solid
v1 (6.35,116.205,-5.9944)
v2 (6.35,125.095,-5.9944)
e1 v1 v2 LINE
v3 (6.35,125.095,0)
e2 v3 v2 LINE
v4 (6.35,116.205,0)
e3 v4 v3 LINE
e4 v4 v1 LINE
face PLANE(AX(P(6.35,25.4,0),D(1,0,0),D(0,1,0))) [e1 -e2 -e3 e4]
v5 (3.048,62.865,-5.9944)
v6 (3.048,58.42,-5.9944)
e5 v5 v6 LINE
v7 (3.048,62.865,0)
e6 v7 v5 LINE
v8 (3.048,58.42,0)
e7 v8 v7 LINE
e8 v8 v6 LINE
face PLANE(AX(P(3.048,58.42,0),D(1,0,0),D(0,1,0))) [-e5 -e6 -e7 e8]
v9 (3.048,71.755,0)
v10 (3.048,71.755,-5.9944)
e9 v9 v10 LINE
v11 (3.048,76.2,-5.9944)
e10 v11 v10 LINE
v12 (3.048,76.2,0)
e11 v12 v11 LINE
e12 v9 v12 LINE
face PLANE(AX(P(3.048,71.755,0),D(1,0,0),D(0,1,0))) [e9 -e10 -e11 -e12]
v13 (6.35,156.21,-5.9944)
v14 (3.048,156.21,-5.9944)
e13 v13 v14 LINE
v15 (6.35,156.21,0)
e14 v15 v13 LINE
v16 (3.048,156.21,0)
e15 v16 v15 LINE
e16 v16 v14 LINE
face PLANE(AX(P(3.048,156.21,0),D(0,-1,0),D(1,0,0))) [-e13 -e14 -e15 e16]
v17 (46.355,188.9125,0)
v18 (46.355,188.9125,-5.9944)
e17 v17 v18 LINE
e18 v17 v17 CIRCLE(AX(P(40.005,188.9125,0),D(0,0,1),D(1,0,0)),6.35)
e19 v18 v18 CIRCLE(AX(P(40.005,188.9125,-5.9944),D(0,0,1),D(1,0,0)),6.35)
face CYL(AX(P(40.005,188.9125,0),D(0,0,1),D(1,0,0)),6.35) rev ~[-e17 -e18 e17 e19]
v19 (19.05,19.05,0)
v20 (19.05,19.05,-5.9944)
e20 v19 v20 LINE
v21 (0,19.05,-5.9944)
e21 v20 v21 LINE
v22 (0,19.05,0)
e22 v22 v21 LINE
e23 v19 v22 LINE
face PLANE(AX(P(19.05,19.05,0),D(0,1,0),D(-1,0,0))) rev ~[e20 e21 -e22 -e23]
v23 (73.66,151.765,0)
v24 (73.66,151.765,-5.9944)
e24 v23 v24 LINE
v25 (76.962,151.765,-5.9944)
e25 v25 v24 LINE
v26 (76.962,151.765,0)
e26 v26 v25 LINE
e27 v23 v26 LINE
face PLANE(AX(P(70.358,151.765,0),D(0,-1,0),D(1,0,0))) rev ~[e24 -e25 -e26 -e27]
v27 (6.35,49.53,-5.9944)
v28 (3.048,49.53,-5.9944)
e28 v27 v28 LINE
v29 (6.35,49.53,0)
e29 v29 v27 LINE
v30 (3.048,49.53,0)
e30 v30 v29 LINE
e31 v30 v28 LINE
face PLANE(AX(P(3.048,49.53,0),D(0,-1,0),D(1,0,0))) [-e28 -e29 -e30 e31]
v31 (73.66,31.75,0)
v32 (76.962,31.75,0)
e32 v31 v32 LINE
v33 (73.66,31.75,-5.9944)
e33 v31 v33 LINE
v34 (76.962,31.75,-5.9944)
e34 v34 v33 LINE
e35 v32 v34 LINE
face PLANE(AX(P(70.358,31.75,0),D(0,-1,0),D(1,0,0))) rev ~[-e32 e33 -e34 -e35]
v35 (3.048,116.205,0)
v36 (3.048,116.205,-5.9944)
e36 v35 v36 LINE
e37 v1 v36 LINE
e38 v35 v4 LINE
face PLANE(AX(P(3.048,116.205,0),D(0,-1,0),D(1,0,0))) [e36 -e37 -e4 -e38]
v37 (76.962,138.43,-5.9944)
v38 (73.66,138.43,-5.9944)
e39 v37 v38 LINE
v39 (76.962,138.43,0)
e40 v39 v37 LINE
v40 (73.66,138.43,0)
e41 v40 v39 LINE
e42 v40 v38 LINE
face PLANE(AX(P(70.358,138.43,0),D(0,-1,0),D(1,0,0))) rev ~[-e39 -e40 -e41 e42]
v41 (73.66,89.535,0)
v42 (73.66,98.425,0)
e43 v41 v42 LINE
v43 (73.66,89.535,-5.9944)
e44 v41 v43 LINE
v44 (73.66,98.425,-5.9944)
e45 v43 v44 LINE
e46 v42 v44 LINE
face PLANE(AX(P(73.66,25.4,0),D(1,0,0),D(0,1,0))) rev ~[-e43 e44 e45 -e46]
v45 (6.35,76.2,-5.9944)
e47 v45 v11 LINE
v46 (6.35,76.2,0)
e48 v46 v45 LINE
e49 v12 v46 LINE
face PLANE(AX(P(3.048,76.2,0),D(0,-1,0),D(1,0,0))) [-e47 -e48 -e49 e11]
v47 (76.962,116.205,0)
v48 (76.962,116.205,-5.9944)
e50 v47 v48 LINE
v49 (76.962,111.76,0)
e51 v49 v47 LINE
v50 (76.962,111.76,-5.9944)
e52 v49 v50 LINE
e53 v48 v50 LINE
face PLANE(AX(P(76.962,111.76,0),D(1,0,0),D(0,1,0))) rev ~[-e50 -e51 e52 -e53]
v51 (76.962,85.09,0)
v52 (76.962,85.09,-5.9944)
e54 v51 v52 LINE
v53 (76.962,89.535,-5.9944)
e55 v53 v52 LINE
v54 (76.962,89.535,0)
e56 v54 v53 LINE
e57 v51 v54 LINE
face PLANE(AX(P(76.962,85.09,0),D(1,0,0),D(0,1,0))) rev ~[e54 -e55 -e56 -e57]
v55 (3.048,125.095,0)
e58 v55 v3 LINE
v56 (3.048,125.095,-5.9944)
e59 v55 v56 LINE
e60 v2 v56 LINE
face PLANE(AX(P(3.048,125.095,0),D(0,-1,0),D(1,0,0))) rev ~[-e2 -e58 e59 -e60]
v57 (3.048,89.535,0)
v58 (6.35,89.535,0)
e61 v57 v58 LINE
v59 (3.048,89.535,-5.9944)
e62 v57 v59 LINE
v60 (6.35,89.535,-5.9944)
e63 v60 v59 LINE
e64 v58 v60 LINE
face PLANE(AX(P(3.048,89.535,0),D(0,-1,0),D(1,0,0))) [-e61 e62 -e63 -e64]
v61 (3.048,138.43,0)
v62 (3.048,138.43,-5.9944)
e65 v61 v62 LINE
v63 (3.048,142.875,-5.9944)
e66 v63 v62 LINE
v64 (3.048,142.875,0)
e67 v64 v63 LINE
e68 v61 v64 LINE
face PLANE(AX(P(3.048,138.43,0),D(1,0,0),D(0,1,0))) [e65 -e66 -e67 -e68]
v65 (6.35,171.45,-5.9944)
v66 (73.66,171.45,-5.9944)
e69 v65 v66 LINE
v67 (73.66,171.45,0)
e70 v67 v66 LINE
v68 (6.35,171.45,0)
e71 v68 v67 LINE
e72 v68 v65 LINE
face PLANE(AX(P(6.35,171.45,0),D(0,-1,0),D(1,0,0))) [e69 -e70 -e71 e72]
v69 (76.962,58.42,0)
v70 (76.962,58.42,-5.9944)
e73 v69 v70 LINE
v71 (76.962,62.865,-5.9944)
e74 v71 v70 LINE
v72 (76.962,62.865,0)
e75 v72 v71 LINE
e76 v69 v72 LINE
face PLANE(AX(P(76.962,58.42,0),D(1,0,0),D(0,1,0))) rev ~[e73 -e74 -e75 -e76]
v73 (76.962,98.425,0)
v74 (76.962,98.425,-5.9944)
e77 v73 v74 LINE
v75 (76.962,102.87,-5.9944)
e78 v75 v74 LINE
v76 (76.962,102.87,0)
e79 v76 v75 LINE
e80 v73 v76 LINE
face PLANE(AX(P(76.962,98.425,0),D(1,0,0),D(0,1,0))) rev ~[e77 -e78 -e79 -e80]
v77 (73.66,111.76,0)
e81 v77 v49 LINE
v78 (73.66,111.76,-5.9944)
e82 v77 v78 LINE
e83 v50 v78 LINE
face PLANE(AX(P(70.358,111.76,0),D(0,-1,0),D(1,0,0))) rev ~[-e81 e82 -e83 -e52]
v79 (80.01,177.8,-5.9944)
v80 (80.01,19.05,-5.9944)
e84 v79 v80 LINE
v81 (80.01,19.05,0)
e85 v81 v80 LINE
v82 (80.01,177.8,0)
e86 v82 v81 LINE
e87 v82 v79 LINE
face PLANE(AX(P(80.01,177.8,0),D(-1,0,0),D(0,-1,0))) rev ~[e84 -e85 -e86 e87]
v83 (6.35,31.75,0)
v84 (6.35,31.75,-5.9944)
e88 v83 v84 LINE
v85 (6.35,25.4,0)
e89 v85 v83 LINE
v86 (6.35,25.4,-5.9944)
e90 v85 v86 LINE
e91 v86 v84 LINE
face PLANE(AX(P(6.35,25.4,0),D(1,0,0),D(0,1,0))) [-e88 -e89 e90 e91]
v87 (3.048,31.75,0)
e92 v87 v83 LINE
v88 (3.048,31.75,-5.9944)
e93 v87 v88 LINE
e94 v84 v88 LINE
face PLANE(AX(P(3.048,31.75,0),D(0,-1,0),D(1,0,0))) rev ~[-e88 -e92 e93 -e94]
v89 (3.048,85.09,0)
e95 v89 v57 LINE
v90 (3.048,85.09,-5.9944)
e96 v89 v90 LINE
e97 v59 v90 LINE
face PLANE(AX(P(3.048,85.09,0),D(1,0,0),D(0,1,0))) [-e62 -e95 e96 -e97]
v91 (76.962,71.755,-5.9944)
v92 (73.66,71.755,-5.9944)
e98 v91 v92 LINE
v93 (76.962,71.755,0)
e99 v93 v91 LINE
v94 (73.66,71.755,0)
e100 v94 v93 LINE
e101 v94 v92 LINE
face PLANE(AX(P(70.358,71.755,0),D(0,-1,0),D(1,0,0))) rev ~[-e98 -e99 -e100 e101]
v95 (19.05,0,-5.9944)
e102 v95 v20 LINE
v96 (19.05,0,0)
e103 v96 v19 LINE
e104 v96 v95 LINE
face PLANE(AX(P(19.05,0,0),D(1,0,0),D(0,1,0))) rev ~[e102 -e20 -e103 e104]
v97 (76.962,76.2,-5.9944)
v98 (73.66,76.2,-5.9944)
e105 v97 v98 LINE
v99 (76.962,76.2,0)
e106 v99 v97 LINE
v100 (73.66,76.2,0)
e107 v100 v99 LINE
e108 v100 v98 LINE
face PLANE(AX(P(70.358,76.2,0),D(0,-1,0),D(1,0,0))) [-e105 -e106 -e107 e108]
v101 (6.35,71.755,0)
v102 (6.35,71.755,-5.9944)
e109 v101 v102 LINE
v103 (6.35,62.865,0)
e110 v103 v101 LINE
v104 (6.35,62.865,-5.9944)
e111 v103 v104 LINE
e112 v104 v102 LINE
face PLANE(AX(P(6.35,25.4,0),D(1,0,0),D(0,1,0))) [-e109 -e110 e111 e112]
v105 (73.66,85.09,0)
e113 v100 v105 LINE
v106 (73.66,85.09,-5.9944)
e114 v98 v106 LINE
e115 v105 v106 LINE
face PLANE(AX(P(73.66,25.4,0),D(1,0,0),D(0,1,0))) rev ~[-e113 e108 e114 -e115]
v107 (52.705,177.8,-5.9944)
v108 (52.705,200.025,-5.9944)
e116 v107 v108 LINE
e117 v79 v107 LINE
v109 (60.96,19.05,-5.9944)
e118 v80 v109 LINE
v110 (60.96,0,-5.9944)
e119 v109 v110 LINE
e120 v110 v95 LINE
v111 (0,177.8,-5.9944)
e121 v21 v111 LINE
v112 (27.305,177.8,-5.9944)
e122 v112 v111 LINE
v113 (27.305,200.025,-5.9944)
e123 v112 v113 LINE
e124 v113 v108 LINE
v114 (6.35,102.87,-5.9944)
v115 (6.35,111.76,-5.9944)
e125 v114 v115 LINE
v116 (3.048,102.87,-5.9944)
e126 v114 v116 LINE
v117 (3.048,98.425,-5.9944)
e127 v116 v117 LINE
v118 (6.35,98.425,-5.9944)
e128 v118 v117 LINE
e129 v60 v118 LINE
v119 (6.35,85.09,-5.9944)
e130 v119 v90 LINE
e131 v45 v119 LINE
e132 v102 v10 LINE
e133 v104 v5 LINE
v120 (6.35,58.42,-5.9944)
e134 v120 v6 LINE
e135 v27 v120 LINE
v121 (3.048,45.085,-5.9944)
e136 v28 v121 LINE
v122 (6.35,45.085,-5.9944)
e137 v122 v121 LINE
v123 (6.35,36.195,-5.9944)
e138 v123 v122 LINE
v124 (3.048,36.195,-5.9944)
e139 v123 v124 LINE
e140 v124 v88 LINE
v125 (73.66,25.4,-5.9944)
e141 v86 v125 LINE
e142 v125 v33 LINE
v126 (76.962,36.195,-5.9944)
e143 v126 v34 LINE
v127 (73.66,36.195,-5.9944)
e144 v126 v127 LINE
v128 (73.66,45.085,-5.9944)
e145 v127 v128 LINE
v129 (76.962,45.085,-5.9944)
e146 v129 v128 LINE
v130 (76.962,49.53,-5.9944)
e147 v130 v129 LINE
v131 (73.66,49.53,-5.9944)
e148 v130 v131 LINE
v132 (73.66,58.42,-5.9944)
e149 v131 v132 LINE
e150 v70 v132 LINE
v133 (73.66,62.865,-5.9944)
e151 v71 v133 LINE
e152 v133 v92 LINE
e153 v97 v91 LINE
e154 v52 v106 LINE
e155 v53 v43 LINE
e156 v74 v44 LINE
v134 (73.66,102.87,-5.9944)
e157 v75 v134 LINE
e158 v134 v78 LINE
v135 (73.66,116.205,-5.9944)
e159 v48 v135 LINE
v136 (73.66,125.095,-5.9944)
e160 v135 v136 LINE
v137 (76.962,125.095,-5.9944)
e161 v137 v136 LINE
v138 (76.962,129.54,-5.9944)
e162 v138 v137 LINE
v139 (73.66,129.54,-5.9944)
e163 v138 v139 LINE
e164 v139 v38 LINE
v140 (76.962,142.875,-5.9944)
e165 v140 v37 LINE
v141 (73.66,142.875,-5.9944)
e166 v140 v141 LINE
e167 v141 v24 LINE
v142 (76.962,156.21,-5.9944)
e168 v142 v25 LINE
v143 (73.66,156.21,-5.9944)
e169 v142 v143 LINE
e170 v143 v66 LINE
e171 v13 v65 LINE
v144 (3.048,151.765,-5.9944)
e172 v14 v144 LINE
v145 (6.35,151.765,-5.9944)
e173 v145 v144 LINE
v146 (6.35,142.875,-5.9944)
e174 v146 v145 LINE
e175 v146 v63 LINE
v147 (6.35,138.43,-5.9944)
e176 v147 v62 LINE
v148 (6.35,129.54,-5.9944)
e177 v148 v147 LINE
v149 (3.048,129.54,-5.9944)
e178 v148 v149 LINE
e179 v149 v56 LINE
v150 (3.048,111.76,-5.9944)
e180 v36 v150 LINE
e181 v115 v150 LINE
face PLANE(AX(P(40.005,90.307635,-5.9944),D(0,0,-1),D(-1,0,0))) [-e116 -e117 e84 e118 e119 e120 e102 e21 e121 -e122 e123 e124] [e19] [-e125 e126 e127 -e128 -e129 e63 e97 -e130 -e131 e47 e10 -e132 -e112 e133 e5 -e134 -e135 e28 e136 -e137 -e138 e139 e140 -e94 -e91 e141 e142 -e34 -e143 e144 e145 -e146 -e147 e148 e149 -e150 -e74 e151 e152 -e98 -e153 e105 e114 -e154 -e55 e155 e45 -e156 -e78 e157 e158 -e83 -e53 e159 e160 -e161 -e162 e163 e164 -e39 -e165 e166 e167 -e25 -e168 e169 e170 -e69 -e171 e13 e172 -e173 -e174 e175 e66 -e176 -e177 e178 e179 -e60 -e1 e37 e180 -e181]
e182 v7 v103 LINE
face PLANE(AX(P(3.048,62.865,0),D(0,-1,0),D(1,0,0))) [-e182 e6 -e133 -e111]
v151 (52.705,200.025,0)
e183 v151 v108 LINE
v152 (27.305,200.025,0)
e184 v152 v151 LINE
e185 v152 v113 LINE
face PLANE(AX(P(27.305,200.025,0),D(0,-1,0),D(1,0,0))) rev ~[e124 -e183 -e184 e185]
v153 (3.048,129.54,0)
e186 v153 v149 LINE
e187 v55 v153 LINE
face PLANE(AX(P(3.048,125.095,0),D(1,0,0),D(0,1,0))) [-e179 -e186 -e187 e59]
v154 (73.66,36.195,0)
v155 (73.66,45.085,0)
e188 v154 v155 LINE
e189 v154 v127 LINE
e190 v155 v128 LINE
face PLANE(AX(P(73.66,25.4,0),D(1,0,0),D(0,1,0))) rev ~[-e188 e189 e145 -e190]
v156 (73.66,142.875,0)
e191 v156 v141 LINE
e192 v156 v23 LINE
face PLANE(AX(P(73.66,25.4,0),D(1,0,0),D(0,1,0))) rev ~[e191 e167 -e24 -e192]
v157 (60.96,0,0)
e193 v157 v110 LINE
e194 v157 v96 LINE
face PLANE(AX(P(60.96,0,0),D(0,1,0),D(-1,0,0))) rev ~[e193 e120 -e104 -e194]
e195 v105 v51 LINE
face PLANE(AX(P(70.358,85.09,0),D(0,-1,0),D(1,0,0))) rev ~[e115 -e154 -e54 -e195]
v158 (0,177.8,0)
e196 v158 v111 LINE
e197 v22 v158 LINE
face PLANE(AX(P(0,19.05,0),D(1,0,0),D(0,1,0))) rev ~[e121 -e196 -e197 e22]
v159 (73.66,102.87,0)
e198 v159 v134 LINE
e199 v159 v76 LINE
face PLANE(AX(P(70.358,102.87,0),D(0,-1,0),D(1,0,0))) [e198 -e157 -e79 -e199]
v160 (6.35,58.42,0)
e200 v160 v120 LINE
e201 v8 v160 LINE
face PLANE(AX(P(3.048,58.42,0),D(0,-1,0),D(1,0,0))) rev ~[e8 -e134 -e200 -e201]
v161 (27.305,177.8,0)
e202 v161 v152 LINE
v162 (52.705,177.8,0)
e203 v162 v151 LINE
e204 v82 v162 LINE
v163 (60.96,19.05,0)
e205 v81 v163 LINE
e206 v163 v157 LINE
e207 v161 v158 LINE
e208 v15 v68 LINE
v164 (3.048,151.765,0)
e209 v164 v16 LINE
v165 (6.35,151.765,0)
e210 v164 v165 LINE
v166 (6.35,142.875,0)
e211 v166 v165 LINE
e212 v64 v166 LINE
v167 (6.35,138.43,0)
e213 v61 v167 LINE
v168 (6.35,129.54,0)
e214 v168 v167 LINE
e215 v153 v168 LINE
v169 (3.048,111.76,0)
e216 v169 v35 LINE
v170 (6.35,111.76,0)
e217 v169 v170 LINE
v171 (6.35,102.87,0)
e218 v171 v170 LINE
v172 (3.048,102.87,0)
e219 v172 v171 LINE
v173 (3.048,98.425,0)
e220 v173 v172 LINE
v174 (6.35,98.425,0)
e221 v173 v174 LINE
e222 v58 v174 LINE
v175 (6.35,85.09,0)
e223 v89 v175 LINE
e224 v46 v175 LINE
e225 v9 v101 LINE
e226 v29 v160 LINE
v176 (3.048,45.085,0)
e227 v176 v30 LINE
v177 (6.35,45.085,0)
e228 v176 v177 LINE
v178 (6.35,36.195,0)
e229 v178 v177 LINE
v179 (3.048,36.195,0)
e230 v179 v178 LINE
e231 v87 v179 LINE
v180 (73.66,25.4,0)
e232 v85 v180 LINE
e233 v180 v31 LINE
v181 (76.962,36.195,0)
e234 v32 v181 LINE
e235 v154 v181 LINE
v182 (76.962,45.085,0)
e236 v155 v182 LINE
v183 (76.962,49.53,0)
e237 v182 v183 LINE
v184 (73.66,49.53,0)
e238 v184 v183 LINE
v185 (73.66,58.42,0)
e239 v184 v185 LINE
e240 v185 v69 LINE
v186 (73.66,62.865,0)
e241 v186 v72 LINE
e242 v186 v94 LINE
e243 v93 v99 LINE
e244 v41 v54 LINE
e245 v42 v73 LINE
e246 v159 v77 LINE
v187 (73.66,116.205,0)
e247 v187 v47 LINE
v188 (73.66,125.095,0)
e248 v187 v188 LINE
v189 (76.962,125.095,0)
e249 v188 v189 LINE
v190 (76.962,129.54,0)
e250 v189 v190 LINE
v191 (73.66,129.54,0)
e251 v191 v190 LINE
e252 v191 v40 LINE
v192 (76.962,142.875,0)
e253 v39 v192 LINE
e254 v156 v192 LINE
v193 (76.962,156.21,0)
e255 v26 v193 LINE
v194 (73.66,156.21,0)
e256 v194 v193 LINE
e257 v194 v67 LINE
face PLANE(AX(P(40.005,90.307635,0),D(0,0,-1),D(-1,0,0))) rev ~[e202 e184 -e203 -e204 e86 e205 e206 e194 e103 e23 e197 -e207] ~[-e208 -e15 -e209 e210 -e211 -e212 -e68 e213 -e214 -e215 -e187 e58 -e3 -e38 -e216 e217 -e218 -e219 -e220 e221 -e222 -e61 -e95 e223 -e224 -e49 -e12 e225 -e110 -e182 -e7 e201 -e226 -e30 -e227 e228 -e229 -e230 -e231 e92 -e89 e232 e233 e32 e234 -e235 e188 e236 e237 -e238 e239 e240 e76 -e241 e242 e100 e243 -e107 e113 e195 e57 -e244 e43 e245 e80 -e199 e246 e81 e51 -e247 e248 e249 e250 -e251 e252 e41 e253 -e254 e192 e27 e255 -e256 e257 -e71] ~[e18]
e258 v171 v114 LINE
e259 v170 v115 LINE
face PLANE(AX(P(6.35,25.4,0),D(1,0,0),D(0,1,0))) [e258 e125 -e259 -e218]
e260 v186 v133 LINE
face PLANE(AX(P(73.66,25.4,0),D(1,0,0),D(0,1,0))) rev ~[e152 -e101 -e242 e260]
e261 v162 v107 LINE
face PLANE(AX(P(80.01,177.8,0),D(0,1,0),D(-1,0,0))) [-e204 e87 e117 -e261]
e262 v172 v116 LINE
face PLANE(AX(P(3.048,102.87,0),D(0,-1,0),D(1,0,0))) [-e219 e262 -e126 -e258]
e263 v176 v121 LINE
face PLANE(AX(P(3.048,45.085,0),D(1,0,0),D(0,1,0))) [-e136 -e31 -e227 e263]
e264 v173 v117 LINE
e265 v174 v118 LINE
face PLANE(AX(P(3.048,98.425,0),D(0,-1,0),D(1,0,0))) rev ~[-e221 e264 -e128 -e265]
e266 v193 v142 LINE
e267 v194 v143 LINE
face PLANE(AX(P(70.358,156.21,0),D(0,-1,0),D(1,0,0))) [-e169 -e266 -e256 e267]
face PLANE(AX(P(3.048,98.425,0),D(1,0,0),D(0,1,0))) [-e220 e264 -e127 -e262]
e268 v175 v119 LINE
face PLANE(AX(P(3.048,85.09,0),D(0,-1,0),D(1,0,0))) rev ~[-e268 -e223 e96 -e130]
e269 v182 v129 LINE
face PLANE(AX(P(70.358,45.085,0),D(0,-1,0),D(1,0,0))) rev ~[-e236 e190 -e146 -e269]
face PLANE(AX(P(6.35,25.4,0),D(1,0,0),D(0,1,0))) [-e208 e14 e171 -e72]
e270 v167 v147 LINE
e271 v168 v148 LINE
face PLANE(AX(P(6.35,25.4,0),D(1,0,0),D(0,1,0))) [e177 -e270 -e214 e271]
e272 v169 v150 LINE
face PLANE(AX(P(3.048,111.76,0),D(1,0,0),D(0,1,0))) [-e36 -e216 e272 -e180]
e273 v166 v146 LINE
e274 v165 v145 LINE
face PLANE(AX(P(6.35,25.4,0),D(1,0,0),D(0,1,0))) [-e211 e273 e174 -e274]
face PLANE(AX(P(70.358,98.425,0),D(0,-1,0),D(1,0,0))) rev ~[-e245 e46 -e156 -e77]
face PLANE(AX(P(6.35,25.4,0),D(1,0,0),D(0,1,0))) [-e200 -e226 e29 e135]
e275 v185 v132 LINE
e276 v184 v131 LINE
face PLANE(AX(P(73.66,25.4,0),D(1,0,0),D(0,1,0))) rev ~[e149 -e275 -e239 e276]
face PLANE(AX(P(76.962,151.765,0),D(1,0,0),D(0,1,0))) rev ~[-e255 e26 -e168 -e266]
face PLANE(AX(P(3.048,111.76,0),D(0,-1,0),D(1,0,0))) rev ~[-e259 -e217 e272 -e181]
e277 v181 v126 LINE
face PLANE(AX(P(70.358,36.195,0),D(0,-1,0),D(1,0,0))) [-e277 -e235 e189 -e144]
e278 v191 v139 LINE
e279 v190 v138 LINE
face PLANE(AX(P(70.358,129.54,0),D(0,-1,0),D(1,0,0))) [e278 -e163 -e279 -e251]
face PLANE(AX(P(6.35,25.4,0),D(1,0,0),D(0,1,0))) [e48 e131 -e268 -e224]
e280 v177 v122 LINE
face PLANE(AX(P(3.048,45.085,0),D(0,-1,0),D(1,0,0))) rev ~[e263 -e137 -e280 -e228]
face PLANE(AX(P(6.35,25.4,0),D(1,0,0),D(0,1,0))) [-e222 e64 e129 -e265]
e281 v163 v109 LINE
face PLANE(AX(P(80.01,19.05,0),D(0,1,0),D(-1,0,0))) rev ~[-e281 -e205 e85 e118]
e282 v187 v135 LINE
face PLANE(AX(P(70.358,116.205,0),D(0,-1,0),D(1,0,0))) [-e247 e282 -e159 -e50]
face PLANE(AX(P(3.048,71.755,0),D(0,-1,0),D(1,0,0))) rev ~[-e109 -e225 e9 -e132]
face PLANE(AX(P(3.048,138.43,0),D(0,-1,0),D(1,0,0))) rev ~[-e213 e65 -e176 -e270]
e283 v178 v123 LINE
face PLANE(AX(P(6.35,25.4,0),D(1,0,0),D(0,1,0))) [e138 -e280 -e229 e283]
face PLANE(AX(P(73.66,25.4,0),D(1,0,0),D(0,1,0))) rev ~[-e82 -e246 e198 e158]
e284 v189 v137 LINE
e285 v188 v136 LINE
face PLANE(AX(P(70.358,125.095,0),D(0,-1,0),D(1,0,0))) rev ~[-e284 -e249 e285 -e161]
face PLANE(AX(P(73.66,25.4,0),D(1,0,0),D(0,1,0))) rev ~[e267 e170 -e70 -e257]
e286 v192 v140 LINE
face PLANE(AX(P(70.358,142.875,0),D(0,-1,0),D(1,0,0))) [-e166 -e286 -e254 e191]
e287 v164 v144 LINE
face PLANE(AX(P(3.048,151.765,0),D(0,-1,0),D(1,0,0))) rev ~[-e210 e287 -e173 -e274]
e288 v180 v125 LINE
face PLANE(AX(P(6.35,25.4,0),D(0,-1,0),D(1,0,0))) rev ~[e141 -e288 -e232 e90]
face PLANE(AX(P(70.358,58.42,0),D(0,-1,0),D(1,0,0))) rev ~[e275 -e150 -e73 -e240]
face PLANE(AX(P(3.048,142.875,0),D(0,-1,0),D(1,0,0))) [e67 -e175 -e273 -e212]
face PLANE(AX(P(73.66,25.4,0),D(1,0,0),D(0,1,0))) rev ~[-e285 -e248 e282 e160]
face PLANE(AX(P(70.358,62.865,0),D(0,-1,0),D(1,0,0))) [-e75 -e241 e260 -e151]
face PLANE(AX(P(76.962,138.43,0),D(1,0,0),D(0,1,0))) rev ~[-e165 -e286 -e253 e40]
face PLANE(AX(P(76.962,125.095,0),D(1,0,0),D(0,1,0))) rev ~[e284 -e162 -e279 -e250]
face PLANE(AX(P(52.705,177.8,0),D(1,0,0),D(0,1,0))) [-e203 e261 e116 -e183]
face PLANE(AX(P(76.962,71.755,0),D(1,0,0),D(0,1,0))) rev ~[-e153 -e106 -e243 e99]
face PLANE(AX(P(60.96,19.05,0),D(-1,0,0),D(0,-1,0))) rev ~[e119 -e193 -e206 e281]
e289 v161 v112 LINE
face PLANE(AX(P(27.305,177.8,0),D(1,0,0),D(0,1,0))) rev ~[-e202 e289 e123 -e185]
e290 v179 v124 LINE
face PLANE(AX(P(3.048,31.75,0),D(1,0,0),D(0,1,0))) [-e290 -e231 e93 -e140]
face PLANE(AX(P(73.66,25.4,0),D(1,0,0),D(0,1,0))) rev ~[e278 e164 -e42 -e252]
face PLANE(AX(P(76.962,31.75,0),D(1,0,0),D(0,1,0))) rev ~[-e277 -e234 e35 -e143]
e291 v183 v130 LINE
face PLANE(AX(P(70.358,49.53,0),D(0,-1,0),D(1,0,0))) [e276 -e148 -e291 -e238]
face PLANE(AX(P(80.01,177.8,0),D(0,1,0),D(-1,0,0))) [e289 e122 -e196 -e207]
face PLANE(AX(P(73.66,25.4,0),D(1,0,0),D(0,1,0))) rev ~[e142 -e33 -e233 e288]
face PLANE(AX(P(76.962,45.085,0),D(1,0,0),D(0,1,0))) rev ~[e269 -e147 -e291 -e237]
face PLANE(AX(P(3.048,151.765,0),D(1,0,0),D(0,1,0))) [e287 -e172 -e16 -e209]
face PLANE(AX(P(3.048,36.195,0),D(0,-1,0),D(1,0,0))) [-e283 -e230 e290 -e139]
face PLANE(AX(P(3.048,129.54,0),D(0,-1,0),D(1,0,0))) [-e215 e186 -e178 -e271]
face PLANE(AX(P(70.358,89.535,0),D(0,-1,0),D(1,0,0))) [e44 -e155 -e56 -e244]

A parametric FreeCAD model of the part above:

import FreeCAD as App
import Part
import Sketcher
from FreeCAD import Vector
Q = App.Units.Quantity

doc = App.newDocument("Part")
body = doc.addObject("PartDesign::Body", "Body")

sketch1 = body.newObject("Sketcher::SketchObject", "Sketch")
sketch1.AttachmentSupport = (doc.getObject("XY_Plane"), [""])
sketch1.MapMode = "FlatFace"
sketch1.addGeometry(Part.LineSegment(Vector(0, 177.8, 0), Vector(0, 19.05, 0)), False)
sketch1.addGeometry(Part.LineSegment(Vector(0, 19.05, 0), Vector(19.05, 19.05, 0)), False)
sketch1.addGeometry(Part.LineSegment(Vector(19.05, 19.05, 0), Vector(19.05, 0, 0)), False)
sketch1.addGeometry(Part.LineSegment(Vector(19.05, 0, 0), Vector(60.96, 0, 0)), False)
sketch1.addGeometry(Part.LineSegment(Vector(60.96, 0, 0), Vector(60.96, 19.05, 0)), False)
sketch1.addGeometry(Part.LineSegment(Vector(60.96, 19.05, 0), Vector(80.01, 19.05, 0)), False)
sketch1.addGeometry(Part.LineSegment(Vector(80.01, 19.05, 0), Vector(80.01, 177.8, 0)), False)
sketch1.addGeometry(Part.LineSegment(Vector(80.01, 177.8, 0), Vector(0, 177.8, 0)), False)
sketch1.addGeometry(Part.LineSegment(Vector(6.35, 25.4, 0), Vector(6.35, 171.45, 0)), False)
sketch1.addGeometry(Part.LineSegment(Vector(6.35, 171.45, 0), Vector(73.66, 171.45, 0)), False)
sketch1.addGeometry(Part.LineSegment(Vector(73.66, 171.45, 0), Vector(73.66, 25.4, 0)), False)
sketch1.addGeometry(Part.LineSegment(Vector(73.66, 25.4, 0), Vector(6.35, 25.4, 0)), False)
sketch1.addConstraint(Sketcher.Constraint("Coincident", 0, 2, 1, 1))
sketch1.addConstraint(Sketcher.Constraint("Coincident", 1, 2, 2, 1))
sketch1.addConstraint(Sketcher.Constraint("Coincident", 2, 2, 3, 1))
sketch1.addConstraint(Sketcher.Constraint("Coincident", 3, 2, 4, 1))
sketch1.addConstraint(Sketcher.Constraint("Coincident", 4, 2, 5, 1))
sketch1.addConstraint(Sketcher.Constraint("Coincident", 5, 2, 6, 1))
sketch1.addConstraint(Sketcher.Constraint("Coincident", 6, 2, 7, 1))
sketch1.addConstraint(Sketcher.Constraint("Coincident", 7, 2, 0, 1))
sketch1.addConstraint(Sketcher.Constraint("Coincident", 8, 2, 9, 1))
sketch1.addConstraint(Sketcher.Constraint("Coincident", 9, 2, 10, 1))
sketch1.addConstraint(Sketcher.Constraint("Coincident", 10, 2, 11, 1))
sketch1.addConstraint(Sketcher.Constraint("Coincident", 11, 2, 8, 1))
sketch1.addConstraint(Sketcher.Constraint("Vertical", 0))
sketch1.addConstraint(Sketcher.Constraint("Horizontal", 1))
sketch1.addConstraint(Sketcher.Constraint("Vertical", 2))
sketch1.addConstraint(Sketcher.Constraint("Horizontal", 3))
sketch1.addConstraint(Sketcher.Constraint("Vertical", 4))
sketch1.addConstraint(Sketcher.Constraint("Horizontal", 5))
sketch1.addConstraint(Sketcher.Constraint("Vertical", 6))
sketch1.addConstraint(Sketcher.Constraint("Horizontal", 7))
sketch1.addConstraint(Sketcher.Constraint("Vertical", 8))
sketch1.addConstraint(Sketcher.Constraint("Horizontal", 9))
sketch1.addConstraint(Sketcher.Constraint("Vertical", 10))
sketch1.addConstraint(Sketcher.Constraint("Horizontal", 11))
sketch1.addConstraint(Sketcher.Constraint("PointOnObject", 0, 2, -2))
sketch1.addConstraint(Sketcher.Constraint("PointOnObject", 2, 2, -1))
sketch1.addConstraint(Sketcher.Constraint("Horizontal", 1, 2, 4, 2))
sketch1.addConstraint(Sketcher.Constraint("Equal", 1, 5))
sketch1.addConstraint(Sketcher.Constraint("Equal", 5, 2))
sketch1.addConstraint(Sketcher.Constraint("DistanceY", -1, 1, 6, 2, Q("7 in")))
sketch1.addConstraint(Sketcher.Constraint("DistanceY", -1, 1, 10, 2, Q("1 in")))
sketch1.addConstraint(Sketcher.Constraint("DistanceY", 0, 2, 8, 2, Q("6 in")))
sketch1.addConstraint(Sketcher.Constraint("DistanceX", 1, 1, 1, 2, Q("0.75 in")))
sketch1.addConstraint(Sketcher.Constraint("DistanceX", 3, 1, 3, 2, Q("1.65 in")))
sketch1.addConstraint(Sketcher.Constraint("DistanceX", 9, 1, 9, 2, Q("2.65 in")))
sketch1.addConstraint(Sketcher.Constraint("DistanceX", -1, 1, 9, 2, Q("2.9 in")))
pad1 = body.newObject("PartDesign::Pad", "Pad")
pad1.Profile = sketch1
pad1.Length = Q("0.236 in")
pad1.Reversed = True

sketch2 = body.newObject("Sketcher::SketchObject", "Sketch001")
sketch2.AttachmentSupport = (doc.getObject("XY_Plane"), [""])
sketch2.MapMode = "FlatFace"
sketch2.addGeometry(Part.LineSegment(Vector(3.048, 36.195, 0), Vector(3.048, 31.75, 0)), False)
sketch2.addGeometry(Part.LineSegment(Vector(3.048, 31.75, 0), Vector(9.652, 31.75, 0)), False)
sketch2.addGeometry(Part.LineSegment(Vector(9.652, 31.75, 0), Vector(9.652, 36.195, 0)), False)
sketch2.addGeometry(Part.LineSegment(Vector(9.652, 36.195, 0), Vector(3.048, 36.195, 0)), False)
sketch2.addGeometry(Part.LineSegment(Vector(3.048, 49.53, 0), Vector(3.048, 45.085, 0)), False)
sketch2.addGeometry(Part.LineSegment(Vector(3.048, 45.085, 0), Vector(9.652, 45.085, 0)), False)
sketch2.addGeometry(Part.LineSegment(Vector(9.652, 45.085, 0), Vector(9.652, 49.53, 0)), False)
sketch2.addGeometry(Part.LineSegment(Vector(9.652, 49.53, 0), Vector(3.048, 49.53, 0)), False)
sketch2.addGeometry(Part.LineSegment(Vector(3.048, 62.865, 0), Vector(3.048, 58.42, 0)), False)
sketch2.addGeometry(Part.LineSegment(Vector(3.048, 58.42, 0), Vector(9.652, 58.42, 0)), False)
sketch2.addGeometry(Part.LineSegment(Vector(9.652, 58.42, 0), Vector(9.652, 62.865, 0)), False)
sketch2.addGeometry(Part.LineSegment(Vector(9.652, 62.865, 0), Vector(3.048, 62.865, 0)), False)
sketch2.addGeometry(Part.LineSegment(Vector(3.048, 76.2, 0), Vector(3.048, 71.755, 0)), False)
sketch2.addGeometry(Part.LineSegment(Vector(3.048, 71.755, 0), Vector(9.652, 71.755, 0)), False)
sketch2.addGeometry(Part.LineSegment(Vector(9.652, 71.755, 0), Vector(9.652, 76.2, 0)), False)
sketch2.addGeometry(Part.LineSegment(Vector(9.652, 76.2, 0), Vector(3.048, 76.2, 0)), False)
sketch2.addGeometry(Part.LineSegment(Vector(3.048, 89.535, 0), Vector(3.048, 85.09, 0)), False)
sketch2.addGeometry(Part.LineSegment(Vector(3.048, 85.09, 0), Vector(9.652, 85.09, 0)), False)
sketch2.addGeometry(Part.LineSegment(Vector(9.652, 85.09, 0), Vector(9.652, 89.535, 0)), False)
sketch2.addGeometry(Part.LineSegment(Vector(9.652, 89.535, 0), Vector(3.048, 89.535, 0)), False)
sketch2.addGeometry(Part.LineSegment(Vector(3.048, 102.87, 0), Vector(3.048, 98.425, 0)), False)
sketch2.addGeometry(Part.LineSegment(Vector(3.048, 98.425, 0), Vector(9.652, 98.425, 0)), False)
sketch2.addGeometry(Part.LineSegment(Vector(9.652, 98.425, 0), Vector(9.652, 102.87, 0)), False)
sketch2.addGeometry(Part.LineSegment(Vector(9.652, 102.87, 0), Vector(3.048, 102.87, 0)), False)
sketch2.addGeometry(Part.LineSegment(Vector(3.048, 116.205, 0), Vector(3.048, 111.76, 0)), False)
sketch2.addGeometry(Part.LineSegment(Vector(3.048, 111.76, 0), Vector(9.652, 111.76, 0)), False)
sketch2.addGeometry(Part.LineSegment(Vector(9.652, 111.76, 0), Vector(9.652, 116.205, 0)), False)
sketch2.addGeometry(Part.LineSegment(Vector(9.652, 116.205, 0), Vector(3.048, 116.205, 0)), False)
sketch2.addGeometry(Part.LineSegment(Vector(3.048, 129.54, 0), Vector(3.048, 125.095, 0)), False)
sketch2.addGeometry(Part.LineSegment(Vector(3.048, 125.095, 0), Vector(9.652, 125.095, 0)), False)
sketch2.addGeometry(Part.LineSegment(Vector(9.652, 125.095, 0), Vector(9.652, 129.54, 0)), False)
sketch2.addGeometry(Part.LineSegment(Vector(9.652, 129.54, 0), Vector(3.048, 129.54, 0)), False)
sketch2.addGeometry(Part.LineSegment(Vector(3.048, 142.875, 0), Vector(3.048, 138.43, 0)), False)
sketch2.addGeometry(Part.LineSegment(Vector(3.048, 138.43, 0), Vector(9.652, 138.43, 0)), False)
sketch2.addGeometry(Part.LineSegment(Vector(9.652, 138.43, 0), Vector(9.652, 142.875, 0)), False)
sketch2.addGeometry(Part.LineSegment(Vector(9.652, 142.875, 0), Vector(3.048, 142.875, 0)), False)
sketch2.addGeometry(Part.LineSegment(Vector(3.048, 156.21, 0), Vector(3.048, 151.765, 0)), False)
sketch2.addGeometry(Part.LineSegment(Vector(3.048, 151.765, 0), Vector(9.652, 151.765, 0)), False)
sketch2.addGeometry(Part.LineSegment(Vector(9.652, 151.765, 0), Vector(9.652, 156.21, 0)), False)
sketch2.addGeometry(Part.LineSegment(Vector(9.652, 156.21, 0), Vector(3.048, 156.21, 0)), False)
sketch2.addGeometry(Part.LineSegment(Vector(70.358, 156.21, 0), Vector(70.358, 151.765, 0)), False)
sketch2.addGeometry(Part.LineSegment(Vector(70.358, 151.765, 0), Vector(76.962, 151.765, 0)), False)
sketch2.addGeometry(Part.LineSegment(Vector(76.962, 151.765, 0), Vector(76.962, 156.21, 0)), False)
sketch2.addGeometry(Part.LineSegment(Vector(76.962, 156.21, 0), Vector(70.358, 156.21, 0)), False)
sketch2.addGeometry(Part.LineSegment(Vector(70.358, 142.875, 0), Vector(70.358, 138.43, 0)), False)
sketch2.addGeometry(Part.LineSegment(Vector(70.358, 138.43, 0), Vector(76.962, 138.43, 0)), False)
sketch2.addGeometry(Part.LineSegment(Vector(76.962, 138.43, 0), Vector(76.962, 142.875, 0)), False)
sketch2.addGeometry(Part.LineSegment(Vector(76.962, 142.875, 0), Vector(70.358, 142.875, 0)), False)
sketch2.addGeometry(Part.LineSegment(Vector(70.358, 129.54, 0), Vector(70.358, 125.095, 0)), False)
sketch2.addGeometry(Part.LineSegment(Vector(70.358, 125.095, 0), Vector(76.962, 125.095, 0)), False)
sketch2.addGeometry(Part.LineSegment(Vector(76.962, 125.095, 0), Vector(76.962, 129.54, 0)), False)
sketch2.addGeometry(Part.LineSegment(Vector(76.962, 129.54, 0), Vector(70.358, 129.54, 0)), False)
sketch2.addGeometry(Part.LineSegment(Vector(70.358, 116.205, 0), Vector(70.358, 111.76, 0)), False)
sketch2.addGeometry(Part.LineSegment(Vector(70.358, 111.76, 0), Vector(76.962, 111.76, 0)), False)
sketch2.addGeometry(Part.LineSegment(Vector(76.962, 111.76, 0), Vector(76.962, 116.205, 0)), False)
sketch2.addGeometry(Part.LineSegment(Vector(76.962, 116.205, 0), Vector(70.358, 116.205, 0)), False)
sketch2.addGeometry(Part.LineSegment(Vector(70.358, 102.87, 0), Vector(70.358, 98.425, 0)), False)
sketch2.addGeometry(Part.LineSegment(Vector(70.358, 98.425, 0), Vector(76.962, 98.425, 0)), False)
sketch2.addGeometry(Part.LineSegment(Vector(76.962, 98.425, 0), Vector(76.962, 102.87, 0)), False)
sketch2.addGeometry(Part.LineSegment(Vector(76.962, 102.87, 0), Vector(70.358, 102.87, 0)), False)
sketch2.addGeometry(Part.LineSegment(Vector(70.358, 89.535, 0), Vector(70.358, 85.09, 0)), False)
sketch2.addGeometry(Part.LineSegment(Vector(70.358, 85.09, 0), Vector(76.962, 85.09, 0)), False)
sketch2.addGeometry(Part.LineSegment(Vector(76.962, 85.09, 0), Vector(76.962, 89.535, 0)), False)
sketch2.addGeometry(Part.LineSegment(Vector(76.962, 89.535, 0), Vector(70.358, 89.535, 0)), False)
sketch2.addGeometry(Part.LineSegment(Vector(70.358, 76.2, 0), Vector(70.358, 71.755, 0)), False)
sketch2.addGeometry(Part.LineSegment(Vector(70.358, 71.755, 0), Vector(76.962, 71.755, 0)), False)
sketch2.addGeometry(Part.LineSegment(Vector(76.962, 71.755, 0), Vector(76.962, 76.2, 0)), False)
sketch2.addGeometry(Part.LineSegment(Vector(76.962, 76.2, 0), Vector(70.358, 76.2, 0)), False)
sketch2.addGeometry(Part.LineSegment(Vector(70.358, 62.865, 0), Vector(70.358, 58.42, 0)), False)
sketch2.addGeometry(Part.LineSegment(Vector(70.358, 58.42, 0), Vector(76.962, 58.42, 0)), False)
sketch2.addGeometry(Part.LineSegment(Vector(76.962, 58.42, 0), Vector(76.962, 62.865, 0)), False)
sketch2.addGeometry(Part.LineSegment(Vector(76.962, 62.865, 0), Vector(70.358, 62.865, 0)), False)
sketch2.addGeometry(Part.LineSegment(Vector(70.358, 49.53, 0), Vector(70.358, 45.085, 0)), False)
sketch2.addGeometry(Part.LineSegment(Vector(70.358, 45.085, 0), Vector(76.962, 45.085, 0)), False)
sketch2.addGeometry(Part.LineSegment(Vector(76.962, 45.085, 0), Vector(76.962, 49.53, 0)), False)
sketch2.addGeometry(Part.LineSegment(Vector(76.962, 49.53, 0), Vector(70.358, 49.53, 0)), False)
sketch2.addGeometry(Part.LineSegment(Vector(70.358, 36.195, 0), Vector(70.358, 31.75, 0)), False)
sketch2.addGeometry(Part.LineSegment(Vector(70.358, 31.75, 0), Vector(76.962, 31.75, 0)), False)
sketch2.addGeometry(Part.LineSegment(Vector(76.962, 31.75, 0), Vector(76.962, 36.195, 0)), False)
sketch2.addGeometry(Part.LineSegment(Vector(76.962, 36.195, 0), Vector(70.358, 36.195, 0)), False)
sketch2.addConstraint(Sketcher.Constraint("Coincident", 0, 2, 1, 1))
sketch2.addConstraint(Sketcher.Constraint("Coincident", 1, 2, 2, 1))
sketch2.addConstraint(Sketcher.Constraint("Coincident", 2, 2, 3, 1))
sketch2.addConstraint(Sketcher.Constraint("Coincident", 3, 2, 0, 1))
sketch2.addConstraint(Sketcher.Constraint("Coincident", 4, 2, 5, 1))
sketch2.addConstraint(Sketcher.Constraint("Coincident", 5, 2, 6, 1))
sketch2.addConstraint(Sketcher.Constraint("Coincident", 6, 2, 7, 1))
sketch2.addConstraint(Sketcher.Constraint("Coincident", 7, 2, 4, 1))
sketch2.addConstraint(Sketcher.Constraint("Coincident", 8, 2, 9, 1))
sketch2.addConstraint(Sketcher.Constraint("Coincident", 9, 2, 10, 1))
sketch2.addConstraint(Sketcher.Constraint("Coincident", 10, 2, 11, 1))
sketch2.addConstraint(Sketcher.Constraint("Coincident", 11, 2, 8, 1))
sketch2.addConstraint(Sketcher.Constraint("Coincident", 12, 2, 13, 1))
sketch2.addConstraint(Sketcher.Constraint("Coincident", 13, 2, 14, 1))
sketch2.addConstraint(Sketcher.Constraint("Coincident", 14, 2, 15, 1))
sketch2.addConstraint(Sketcher.Constraint("Coincident", 15, 2, 12, 1))
sketch2.addConstraint(Sketcher.Constraint("Coincident", 16, 2, 17, 1))
sketch2.addConstraint(Sketcher.Constraint("Coincident", 17, 2, 18, 1))
sketch2.addConstraint(Sketcher.Constraint("Coincident", 18, 2, 19, 1))
sketch2.addConstraint(Sketcher.Constraint("Coincident", 19, 2, 16, 1))
sketch2.addConstraint(Sketcher.Constraint("Coincident", 20, 2, 21, 1))
sketch2.addConstraint(Sketcher.Constraint("Coincident", 21, 2, 22, 1))
sketch2.addConstraint(Sketcher.Constraint("Coincident", 22, 2, 23, 1))
sketch2.addConstraint(Sketcher.Constraint("Coincident", 23, 2, 20, 1))
sketch2.addConstraint(Sketcher.Constraint("Coincident", 24, 2, 25, 1))
sketch2.addConstraint(Sketcher.Constraint("Coincident", 25, 2, 26, 1))
sketch2.addConstraint(Sketcher.Constraint("Coincident", 26, 2, 27, 1))
sketch2.addConstraint(Sketcher.Constraint("Coincident", 27, 2, 24, 1))
sketch2.addConstraint(Sketcher.Constraint("Coincident", 28, 2, 29, 1))
sketch2.addConstraint(Sketcher.Constraint("Coincident", 29, 2, 30, 1))
sketch2.addConstraint(Sketcher.Constraint("Coincident", 30, 2, 31, 1))
sketch2.addConstraint(Sketcher.Constraint("Coincident", 31, 2, 28, 1))
sketch2.addConstraint(Sketcher.Constraint("Coincident", 32, 2, 33, 1))
sketch2.addConstraint(Sketcher.Constraint("Coincident", 33, 2, 34, 1))
sketch2.addConstraint(Sketcher.Constraint("Coincident", 34, 2, 35, 1))
sketch2.addConstraint(Sketcher.Constraint("Coincident", 35, 2, 32, 1))
sketch2.addConstraint(Sketcher.Constraint("Coincident", 36, 2, 37, 1))
sketch2.addConstraint(Sketcher.Constraint("Coincident", 37, 2, 38, 1))
sketch2.addConstraint(Sketcher.Constraint("Coincident", 38, 2, 39, 1))
sketch2.addConstraint(Sketcher.Constraint("Coincident", 39, 2, 36, 1))
sketch2.addConstraint(Sketcher.Constraint("Coincident", 40, 2, 41, 1))
sketch2.addConstraint(Sketcher.Constraint("Coincident", 41, 2, 42, 1))
sketch2.addConstraint(Sketcher.Constraint("Coincident", 42, 2, 43, 1))
sketch2.addConstraint(Sketcher.Constraint("Coincident", 43, 2, 40, 1))
sketch2.addConstraint(Sketcher.Constraint("Coincident", 44, 2, 45, 1))
sketch2.addConstraint(Sketcher.Constraint("Coincident", 45, 2, 46, 1))
sketch2.addConstraint(Sketcher.Constraint("Coincident", 46, 2, 47, 1))
sketch2.addConstraint(Sketcher.Constraint("Coincident", 47, 2, 44, 1))
sketch2.addConstraint(Sketcher.Constraint("Coincident", 48, 2, 49, 1))
sketch2.addConstraint(Sketcher.Constraint("Coincident", 49, 2, 50, 1))
sketch2.addConstraint(Sketcher.Constraint("Coincident", 50, 2, 51, 1))
sketch2.addConstraint(Sketcher.Constraint("Coincident", 51, 2, 48, 1))
sketch2.addConstraint(Sketcher.Constraint("Coincident", 52, 2, 53, 1))
sketch2.addConstraint(Sketcher.Constraint("Coincident", 53, 2, 54, 1))
sketch2.addConstraint(Sketcher.Constraint("Coincident", 54, 2, 55, 1))
sketch2.addConstraint(Sketcher.Constraint("Coincident", 55, 2, 52, 1))
sketch2.addConstraint(Sketcher.Constraint("Coincident", 56, 2, 57, 1))
sketch2.addConstraint(Sketcher.Constraint("Coincident", 57, 2, 58, 1))
sketch2.addConstraint(Sketcher.Constraint("Coincident", 58, 2, 59, 1))
sketch2.addConstraint(Sketcher.Constraint("Coincident", 59, 2, 56, 1))
sketch2.addConstraint(Sketcher.Constraint("Coincident", 60, 2, 61, 1))
sketch2.addConstraint(Sketcher.Constraint("Coincident", 61, 2, 62, 1))
sketch2.addConstraint(Sketcher.Constraint("Coincident", 62, 2, 63, 1))
sketch2.addConstraint(Sketcher.Constraint("Coincident", 63, 2, 60, 1))
sketch2.addConstraint(Sketcher.Constraint("Coincident", 64, 2, 65, 1))
sketch2.addConstraint(Sketcher.Constraint("Coincident", 65, 2, 66, 1))
sketch2.addConstraint(Sketcher.Constraint("Coincident", 66, 2, 67, 1))
sketch2.addConstraint(Sketcher.Constraint("Coincident", 67, 2, 64, 1))
sketch2.addConstraint(Sketcher.Constraint("Coincident", 68, 2, 69, 1))
sketch2.addConstraint(Sketcher.Constraint("Coincident", 69, 2, 70, 1))
sketch2.addConstraint(Sketcher.Constraint("Coincident", 70, 2, 71, 1))
sketch2.addConstraint(Sketcher.Constraint("Coincident", 71, 2, 68, 1))
sketch2.addConstraint(Sketcher.Constraint("Coincident", 72, 2, 73, 1))
sketch2.addConstraint(Sketcher.Constraint("Coincident", 73, 2, 74, 1))
sketch2.addConstraint(Sketcher.Constraint("Coincident", 74, 2, 75, 1))
sketch2.addConstraint(Sketcher.Constraint("Coincident", 75, 2, 72, 1))
sketch2.addConstraint(Sketcher.Constraint("Coincident", 76, 2, 77, 1))
sketch2.addConstraint(Sketcher.Constraint("Coincident", 77, 2, 78, 1))
sketch2.addConstraint(Sketcher.Constraint("Coincident", 78, 2, 79, 1))
sketch2.addConstraint(Sketcher.Constraint("Coincident", 79, 2, 76, 1))
sketch2.addConstraint(Sketcher.Constraint("Vertical", 0))
sketch2.addConstraint(Sketcher.Constraint("Horizontal", 1))
sketch2.addConstraint(Sketcher.Constraint("Vertical", 2))
sketch2.addConstraint(Sketcher.Constraint("Horizontal", 3))
sketch2.addConstraint(Sketcher.Constraint("Vertical", 4))
sketch2.addConstraint(Sketcher.Constraint("Horizontal", 5))
sketch2.addConstraint(Sketcher.Constraint("Vertical", 6))
sketch2.addConstraint(Sketcher.Constraint("Horizontal", 7))
sketch2.addConstraint(Sketcher.Constraint("Vertical", 8))
sketch2.addConstraint(Sketcher.Constraint("Horizontal", 9))
sketch2.addConstraint(Sketcher.Constraint("Vertical", 10))
sketch2.addConstraint(Sketcher.Constraint("Horizontal", 11))
sketch2.addConstraint(Sketcher.Constraint("Vertical", 12))
sketch2.addConstraint(Sketcher.Constraint("Horizontal", 13))
sketch2.addConstraint(Sketcher.Constraint("Vertical", 14))
sketch2.addConstraint(Sketcher.Constraint("Horizontal", 15))
sketch2.addConstraint(Sketcher.Constraint("Vertical", 16))
sketch2.addConstraint(Sketcher.Constraint("Horizontal", 17))
sketch2.addConstraint(Sketcher.Constraint("Vertical", 18))
sketch2.addConstraint(Sketcher.Constraint("Horizontal", 19))
sketch2.addConstraint(Sketcher.Constraint("Vertical", 20))
sketch2.addConstraint(Sketcher.Constraint("Horizontal", 21))
sketch2.addConstraint(Sketcher.Constraint("Vertical", 22))
sketch2.addConstraint(Sketcher.Constraint("Horizontal", 23))
sketch2.addConstraint(Sketcher.Constraint("Vertical", 24))
sketch2.addConstraint(Sketcher.Constraint("Horizontal", 25))
sketch2.addConstraint(Sketcher.Constraint("Vertical", 26))
sketch2.addConstraint(Sketcher.Constraint("Horizontal", 27))
sketch2.addConstraint(Sketcher.Constraint("Vertical", 28))
sketch2.addConstraint(Sketcher.Constraint("Horizontal", 29))
sketch2.addConstraint(Sketcher.Constraint("Vertical", 30))
sketch2.addConstraint(Sketcher.Constraint("Horizontal", 31))
sketch2.addConstraint(Sketcher.Constraint("Vertical", 32))
sketch2.addConstraint(Sketcher.Constraint("Horizontal", 33))
sketch2.addConstraint(Sketcher.Constraint("Vertical", 34))
sketch2.addConstraint(Sketcher.Constraint("Horizontal", 35))
sketch2.addConstraint(Sketcher.Constraint("Vertical", 36))
sketch2.addConstraint(Sketcher.Constraint("Horizontal", 37))
sketch2.addConstraint(Sketcher.Constraint("Vertical", 38))
sketch2.addConstraint(Sketcher.Constraint("Horizontal", 39))
sketch2.addConstraint(Sketcher.Constraint("Vertical", 40))
sketch2.addConstraint(Sketcher.Constraint("Horizontal", 41))
sketch2.addConstraint(Sketcher.Constraint("Vertical", 42))
sketch2.addConstraint(Sketcher.Constraint("Horizontal", 43))
sketch2.addConstraint(Sketcher.Constraint("Vertical", 44))
sketch2.addConstraint(Sketcher.Constraint("Horizontal", 45))
sketch2.addConstraint(Sketcher.Constraint("Vertical", 46))
sketch2.addConstraint(Sketcher.Constraint("Horizontal", 47))
sketch2.addConstraint(Sketcher.Constraint("Vertical", 48))
sketch2.addConstraint(Sketcher.Constraint("Horizontal", 49))
sketch2.addConstraint(Sketcher.Constraint("Vertical", 50))
sketch2.addConstraint(Sketcher.Constraint("Horizontal", 51))
sketch2.addConstraint(Sketcher.Constraint("Vertical", 52))
sketch2.addConstraint(Sketcher.Constraint("Horizontal", 53))
sketch2.addConstraint(Sketcher.Constraint("Vertical", 54))
sketch2.addConstraint(Sketcher.Constraint("Horizontal", 55))
sketch2.addConstraint(Sketcher.Constraint("Vertical", 56))
sketch2.addConstraint(Sketcher.Constraint("Horizontal", 57))
sketch2.addConstraint(Sketcher.Constraint("Vertical", 58))
sketch2.addConstraint(Sketcher.Constraint("Horizontal", 59))
sketch2.addConstraint(Sketcher.Constraint("Vertical", 60))
sketch2.addConstraint(Sketcher.Constraint("Horizontal", 61))
sketch2.addConstraint(Sketcher.Constraint("Vertical", 62))
sketch2.addConstraint(Sketcher.Constraint("Horizontal", 63))
sketch2.addConstraint(Sketcher.Constraint("Vertical", 64))
sketch2.addConstraint(Sketcher.Constraint("Horizontal", 65))
sketch2.addConstraint(Sketcher.Constraint("Vertical", 66))
sketch2.addConstraint(Sketcher.Constraint("Horizontal", 67))
sketch2.addConstraint(Sketcher.Constraint("Vertical", 68))
sketch2.addConstraint(Sketcher.Constraint("Horizontal", 69))
sketch2.addConstraint(Sketcher.Constraint("Vertical", 70))
sketch2.addConstraint(Sketcher.Constraint("Horizontal", 71))
sketch2.addConstraint(Sketcher.Constraint("Vertical", 72))
sketch2.addConstraint(Sketcher.Constraint("Horizontal", 73))
sketch2.addConstraint(Sketcher.Constraint("Vertical", 74))
sketch2.addConstraint(Sketcher.Constraint("Horizontal", 75))
sketch2.addConstraint(Sketcher.Constraint("Vertical", 76))
sketch2.addConstraint(Sketcher.Constraint("Horizontal", 77))
sketch2.addConstraint(Sketcher.Constraint("Vertical", 78))
sketch2.addConstraint(Sketcher.Constraint("Horizontal", 79))
sketch2.addConstraint(Sketcher.Constraint("Horizontal", 37, 2, 40, 2))
sketch2.addConstraint(Sketcher.Constraint("Horizontal", 39, 2, 42, 2))
sketch2.addConstraint(Sketcher.Constraint("Horizontal", 33, 2, 44, 2))
sketch2.addConstraint(Sketcher.Constraint("Horizontal", 35, 2, 46, 2))
sketch2.addConstraint(Sketcher.Constraint("Horizontal", 29, 2, 48, 2))
sketch2.addConstraint(Sketcher.Constraint("Horizontal", 31, 2, 50, 2))
sketch2.addConstraint(Sketcher.Constraint("Horizontal", 25, 2, 52, 2))
sketch2.addConstraint(Sketcher.Constraint("Horizontal", 27, 2, 54, 2))
sketch2.addConstraint(Sketcher.Constraint("Horizontal", 21, 2, 56, 2))
sketch2.addConstraint(Sketcher.Constraint("Horizontal", 23, 2, 58, 2))
sketch2.addConstraint(Sketcher.Constraint("Horizontal", 17, 2, 60, 2))
sketch2.addConstraint(Sketcher.Constraint("Horizontal", 19, 2, 62, 2))
sketch2.addConstraint(Sketcher.Constraint("Horizontal", 13, 2, 64, 2))
sketch2.addConstraint(Sketcher.Constraint("Horizontal", 15, 2, 66, 2))
sketch2.addConstraint(Sketcher.Constraint("Horizontal", 9, 2, 68, 2))
sketch2.addConstraint(Sketcher.Constraint("Horizontal", 11, 2, 70, 2))
sketch2.addConstraint(Sketcher.Constraint("Horizontal", 5, 2, 72, 2))
sketch2.addConstraint(Sketcher.Constraint("Horizontal", 7, 2, 74, 2))
sketch2.addConstraint(Sketcher.Constraint("Horizontal", 1, 2, 76, 2))
sketch2.addConstraint(Sketcher.Constraint("Horizontal", 3, 2, 78, 2))
sketch2.addConstraint(Sketcher.Constraint("Vertical", 3, 2, 4, 2))
sketch2.addConstraint(Sketcher.Constraint("Vertical", 2, 2, 5, 2))
sketch2.addConstraint(Sketcher.Constraint("Vertical", 7, 2, 8, 2))
sketch2.addConstraint(Sketcher.Constraint("Vertical", 6, 2, 9, 2))
sketch2.addConstraint(Sketcher.Constraint("Vertical", 11, 2, 12, 2))
sketch2.addConstraint(Sketcher.Constraint("Vertical", 10, 2, 13, 2))
sketch2.addConstraint(Sketcher.Constraint("Vertical", 15, 2, 16, 2))
sketch2.addConstraint(Sketcher.Constraint("Vertical", 14, 2, 17, 2))
sketch2.addConstraint(Sketcher.Constraint("Vertical", 19, 2, 20, 2))
sketch2.addConstraint(Sketcher.Constraint("Vertical", 18, 2, 21, 2))
sketch2.addConstraint(Sketcher.Constraint("Vertical", 23, 2, 24, 2))
sketch2.addConstraint(Sketcher.Constraint("Vertical", 22, 2, 25, 2))
sketch2.addConstraint(Sketcher.Constraint("Vertical", 27, 2, 28, 2))
sketch2.addConstraint(Sketcher.Constraint("Vertical", 26, 2, 29, 2))
sketch2.addConstraint(Sketcher.Constraint("Vertical", 31, 2, 32, 2))
sketch2.addConstraint(Sketcher.Constraint("Vertical", 30, 2, 33, 2))
sketch2.addConstraint(Sketcher.Constraint("Vertical", 35, 2, 36, 2))
sketch2.addConstraint(Sketcher.Constraint("Vertical", 34, 2, 37, 2))
sketch2.addConstraint(Sketcher.Constraint("Vertical", 43, 2, 44, 2))
sketch2.addConstraint(Sketcher.Constraint("Vertical", 42, 2, 45, 2))
sketch2.addConstraint(Sketcher.Constraint("Vertical", 47, 2, 48, 2))
sketch2.addConstraint(Sketcher.Constraint("Vertical", 46, 2, 49, 2))
sketch2.addConstraint(Sketcher.Constraint("Vertical", 51, 2, 52, 2))
sketch2.addConstraint(Sketcher.Constraint("Vertical", 50, 2, 53, 2))
sketch2.addConstraint(Sketcher.Constraint("Vertical", 55, 2, 56, 2))
sketch2.addConstraint(Sketcher.Constraint("Vertical", 54, 2, 57, 2))
sketch2.addConstraint(Sketcher.Constraint("Vertical", 59, 2, 60, 2))
sketch2.addConstraint(Sketcher.Constraint("Vertical", 58, 2, 61, 2))
sketch2.addConstraint(Sketcher.Constraint("Vertical", 63, 2, 64, 2))
sketch2.addConstraint(Sketcher.Constraint("Vertical", 62, 2, 65, 2))
sketch2.addConstraint(Sketcher.Constraint("Vertical", 67, 2, 68, 2))
sketch2.addConstraint(Sketcher.Constraint("Vertical", 66, 2, 69, 2))
sketch2.addConstraint(Sketcher.Constraint("Vertical", 71, 2, 72, 2))
sketch2.addConstraint(Sketcher.Constraint("Vertical", 70, 2, 73, 2))
sketch2.addConstraint(Sketcher.Constraint("Vertical", 75, 2, 76, 2))
sketch2.addConstraint(Sketcher.Constraint("Vertical", 74, 2, 77, 2))
sketch2.addConstraint(Sketcher.Constraint("Equal", 39, 41))
sketch2.addConstraint(Sketcher.Constraint("Equal", 2, 4))
sketch2.addConstraint(Sketcher.Constraint("Equal", 6, 8))
sketch2.addConstraint(Sketcher.Constraint("Equal", 10, 12))
sketch2.addConstraint(Sketcher.Constraint("Equal", 14, 16))
sketch2.addConstraint(Sketcher.Constraint("Equal", 18, 20))
sketch2.addConstraint(Sketcher.Constraint("Equal", 22, 24))
sketch2.addConstraint(Sketcher.Constraint("Equal", 26, 28))
sketch2.addConstraint(Sketcher.Constraint("Equal", 30, 32))
sketch2.addConstraint(Sketcher.Constraint("Equal", 34, 36))
sketch2.addConstraint(Sketcher.Constraint("DistanceY", -1, 1, 14, 2, Q("3 in")))
sketch2.addConstraint(Sketcher.Constraint("DistanceX", 1, 1, 1, 2, Q("0.26 in")))
sketch2.addConstraint(Sketcher.Constraint("DistanceY", -1, 1, 8, 2, Q("2.3 in")))
sketch2.addConstraint(Sketcher.Constraint("DistanceY", -1, 1, 24, 2, Q("4.4 in")))
sketch2.addConstraint(Sketcher.Constraint("DistanceY", -1, 1, 30, 2, Q("5.1 in")))
sketch2.addConstraint(Sketcher.Constraint("DistanceY", 0, 2, 0, 1, Q("0.175 in")))
sketch2.addConstraint(Sketcher.Constraint("DistanceX", -1, 1, 0, 2, Q("0.12 in")))
sketch2.addConstraint(Sketcher.Constraint("DistanceY", -1, 1, 0, 2, Q("1.25 in")))
sketch2.addConstraint(Sketcher.Constraint("DistanceY", -1, 1, 6, 2, Q("1.95 in")))
sketch2.addConstraint(Sketcher.Constraint("DistanceY", -1, 1, 16, 2, Q("3.35 in")))
sketch2.addConstraint(Sketcher.Constraint("DistanceY", -1, 1, 22, 2, Q("4.05 in")))
sketch2.addConstraint(Sketcher.Constraint("DistanceY", -1, 1, 32, 2, Q("5.45 in")))
sketch2.addConstraint(Sketcher.Constraint("DistanceY", -1, 1, 38, 2, Q("6.15 in")))
sketch2.addConstraint(Sketcher.Constraint("DistanceX", -1, 1, 40, 2, Q("2.77 in")))
pocket1 = body.newObject("PartDesign::Pocket", "Pocket")
pocket1.Profile = sketch2
pocket1.Type = "ThroughAll"

sketch3 = body.newObject("Sketcher::SketchObject", "Sketch002")
sketch3.AttachmentSupport = (doc.getObject("XY_Plane"), [""])
sketch3.MapMode = "FlatFace"
sketch3.addGeometry(Part.LineSegment(Vector(27.305, 200.025, 0), Vector(27.305, 177.8, 0)), False)
sketch3.addGeometry(Part.LineSegment(Vector(27.305, 177.8, 0), Vector(52.705, 177.8, 0)), False)
sketch3.addGeometry(Part.LineSegment(Vector(52.705, 177.8, 0), Vector(52.705, 200.025, 0)), False)
sketch3.addGeometry(Part.LineSegment(Vector(52.705, 200.025, 0), Vector(27.305, 200.025, 0)), False)
sketch3.addGeometry(Part.Circle(Vector(40.005, 188.9125, 0), Vector(0, 0, 1), 6.35), False)
sketch3.addConstraint(Sketcher.Constraint("Coincident", 0, 2, 1, 1))
sketch3.addConstraint(Sketcher.Constraint("Coincident", 1, 2, 2, 1))
sketch3.addConstraint(Sketcher.Constraint("Coincident", 2, 2, 3, 1))
sketch3.addConstraint(Sketcher.Constraint("Coincident", 3, 2, 0, 1))
sketch3.addConstraint(Sketcher.Constraint("Vertical", 0))
sketch3.addConstraint(Sketcher.Constraint("Horizontal", 1))
sketch3.addConstraint(Sketcher.Constraint("Vertical", 2))
sketch3.addConstraint(Sketcher.Constraint("Horizontal", 3))
sketch3.addConstraint(Sketcher.Constraint("Diameter", 4, Q("0.5 in")))
sketch3.addConstraint(Sketcher.Constraint("DistanceX", 1, 1, 1, 2, Q("1 in")))
sketch3.addConstraint(Sketcher.Constraint("DistanceY", -1, 1, 0, 2, Q("7 in")))
sketch3.addConstraint(Sketcher.Constraint("DistanceX", 0, 2, 4, 3, Q("0.5 in")))
sketch3.addConstraint(Sketcher.Constraint("DistanceY", 0, 2, 0, 1, Q("0.875 in")))
sketch3.addConstraint(Sketcher.Constraint("DistanceX", -1, 1, 4, 3, Q("1.575 in")))
sketch3.addConstraint(Sketcher.Constraint("DistanceY", -1, 1, 4, 3, Q("7.4375 in")))
pad2 = body.newObject("PartDesign::Pad", "Pad001")
pad2.Profile = sketch3
pad2.Length = Q("0.236 in")
pad2.Reversed = True

doc.recompute()
